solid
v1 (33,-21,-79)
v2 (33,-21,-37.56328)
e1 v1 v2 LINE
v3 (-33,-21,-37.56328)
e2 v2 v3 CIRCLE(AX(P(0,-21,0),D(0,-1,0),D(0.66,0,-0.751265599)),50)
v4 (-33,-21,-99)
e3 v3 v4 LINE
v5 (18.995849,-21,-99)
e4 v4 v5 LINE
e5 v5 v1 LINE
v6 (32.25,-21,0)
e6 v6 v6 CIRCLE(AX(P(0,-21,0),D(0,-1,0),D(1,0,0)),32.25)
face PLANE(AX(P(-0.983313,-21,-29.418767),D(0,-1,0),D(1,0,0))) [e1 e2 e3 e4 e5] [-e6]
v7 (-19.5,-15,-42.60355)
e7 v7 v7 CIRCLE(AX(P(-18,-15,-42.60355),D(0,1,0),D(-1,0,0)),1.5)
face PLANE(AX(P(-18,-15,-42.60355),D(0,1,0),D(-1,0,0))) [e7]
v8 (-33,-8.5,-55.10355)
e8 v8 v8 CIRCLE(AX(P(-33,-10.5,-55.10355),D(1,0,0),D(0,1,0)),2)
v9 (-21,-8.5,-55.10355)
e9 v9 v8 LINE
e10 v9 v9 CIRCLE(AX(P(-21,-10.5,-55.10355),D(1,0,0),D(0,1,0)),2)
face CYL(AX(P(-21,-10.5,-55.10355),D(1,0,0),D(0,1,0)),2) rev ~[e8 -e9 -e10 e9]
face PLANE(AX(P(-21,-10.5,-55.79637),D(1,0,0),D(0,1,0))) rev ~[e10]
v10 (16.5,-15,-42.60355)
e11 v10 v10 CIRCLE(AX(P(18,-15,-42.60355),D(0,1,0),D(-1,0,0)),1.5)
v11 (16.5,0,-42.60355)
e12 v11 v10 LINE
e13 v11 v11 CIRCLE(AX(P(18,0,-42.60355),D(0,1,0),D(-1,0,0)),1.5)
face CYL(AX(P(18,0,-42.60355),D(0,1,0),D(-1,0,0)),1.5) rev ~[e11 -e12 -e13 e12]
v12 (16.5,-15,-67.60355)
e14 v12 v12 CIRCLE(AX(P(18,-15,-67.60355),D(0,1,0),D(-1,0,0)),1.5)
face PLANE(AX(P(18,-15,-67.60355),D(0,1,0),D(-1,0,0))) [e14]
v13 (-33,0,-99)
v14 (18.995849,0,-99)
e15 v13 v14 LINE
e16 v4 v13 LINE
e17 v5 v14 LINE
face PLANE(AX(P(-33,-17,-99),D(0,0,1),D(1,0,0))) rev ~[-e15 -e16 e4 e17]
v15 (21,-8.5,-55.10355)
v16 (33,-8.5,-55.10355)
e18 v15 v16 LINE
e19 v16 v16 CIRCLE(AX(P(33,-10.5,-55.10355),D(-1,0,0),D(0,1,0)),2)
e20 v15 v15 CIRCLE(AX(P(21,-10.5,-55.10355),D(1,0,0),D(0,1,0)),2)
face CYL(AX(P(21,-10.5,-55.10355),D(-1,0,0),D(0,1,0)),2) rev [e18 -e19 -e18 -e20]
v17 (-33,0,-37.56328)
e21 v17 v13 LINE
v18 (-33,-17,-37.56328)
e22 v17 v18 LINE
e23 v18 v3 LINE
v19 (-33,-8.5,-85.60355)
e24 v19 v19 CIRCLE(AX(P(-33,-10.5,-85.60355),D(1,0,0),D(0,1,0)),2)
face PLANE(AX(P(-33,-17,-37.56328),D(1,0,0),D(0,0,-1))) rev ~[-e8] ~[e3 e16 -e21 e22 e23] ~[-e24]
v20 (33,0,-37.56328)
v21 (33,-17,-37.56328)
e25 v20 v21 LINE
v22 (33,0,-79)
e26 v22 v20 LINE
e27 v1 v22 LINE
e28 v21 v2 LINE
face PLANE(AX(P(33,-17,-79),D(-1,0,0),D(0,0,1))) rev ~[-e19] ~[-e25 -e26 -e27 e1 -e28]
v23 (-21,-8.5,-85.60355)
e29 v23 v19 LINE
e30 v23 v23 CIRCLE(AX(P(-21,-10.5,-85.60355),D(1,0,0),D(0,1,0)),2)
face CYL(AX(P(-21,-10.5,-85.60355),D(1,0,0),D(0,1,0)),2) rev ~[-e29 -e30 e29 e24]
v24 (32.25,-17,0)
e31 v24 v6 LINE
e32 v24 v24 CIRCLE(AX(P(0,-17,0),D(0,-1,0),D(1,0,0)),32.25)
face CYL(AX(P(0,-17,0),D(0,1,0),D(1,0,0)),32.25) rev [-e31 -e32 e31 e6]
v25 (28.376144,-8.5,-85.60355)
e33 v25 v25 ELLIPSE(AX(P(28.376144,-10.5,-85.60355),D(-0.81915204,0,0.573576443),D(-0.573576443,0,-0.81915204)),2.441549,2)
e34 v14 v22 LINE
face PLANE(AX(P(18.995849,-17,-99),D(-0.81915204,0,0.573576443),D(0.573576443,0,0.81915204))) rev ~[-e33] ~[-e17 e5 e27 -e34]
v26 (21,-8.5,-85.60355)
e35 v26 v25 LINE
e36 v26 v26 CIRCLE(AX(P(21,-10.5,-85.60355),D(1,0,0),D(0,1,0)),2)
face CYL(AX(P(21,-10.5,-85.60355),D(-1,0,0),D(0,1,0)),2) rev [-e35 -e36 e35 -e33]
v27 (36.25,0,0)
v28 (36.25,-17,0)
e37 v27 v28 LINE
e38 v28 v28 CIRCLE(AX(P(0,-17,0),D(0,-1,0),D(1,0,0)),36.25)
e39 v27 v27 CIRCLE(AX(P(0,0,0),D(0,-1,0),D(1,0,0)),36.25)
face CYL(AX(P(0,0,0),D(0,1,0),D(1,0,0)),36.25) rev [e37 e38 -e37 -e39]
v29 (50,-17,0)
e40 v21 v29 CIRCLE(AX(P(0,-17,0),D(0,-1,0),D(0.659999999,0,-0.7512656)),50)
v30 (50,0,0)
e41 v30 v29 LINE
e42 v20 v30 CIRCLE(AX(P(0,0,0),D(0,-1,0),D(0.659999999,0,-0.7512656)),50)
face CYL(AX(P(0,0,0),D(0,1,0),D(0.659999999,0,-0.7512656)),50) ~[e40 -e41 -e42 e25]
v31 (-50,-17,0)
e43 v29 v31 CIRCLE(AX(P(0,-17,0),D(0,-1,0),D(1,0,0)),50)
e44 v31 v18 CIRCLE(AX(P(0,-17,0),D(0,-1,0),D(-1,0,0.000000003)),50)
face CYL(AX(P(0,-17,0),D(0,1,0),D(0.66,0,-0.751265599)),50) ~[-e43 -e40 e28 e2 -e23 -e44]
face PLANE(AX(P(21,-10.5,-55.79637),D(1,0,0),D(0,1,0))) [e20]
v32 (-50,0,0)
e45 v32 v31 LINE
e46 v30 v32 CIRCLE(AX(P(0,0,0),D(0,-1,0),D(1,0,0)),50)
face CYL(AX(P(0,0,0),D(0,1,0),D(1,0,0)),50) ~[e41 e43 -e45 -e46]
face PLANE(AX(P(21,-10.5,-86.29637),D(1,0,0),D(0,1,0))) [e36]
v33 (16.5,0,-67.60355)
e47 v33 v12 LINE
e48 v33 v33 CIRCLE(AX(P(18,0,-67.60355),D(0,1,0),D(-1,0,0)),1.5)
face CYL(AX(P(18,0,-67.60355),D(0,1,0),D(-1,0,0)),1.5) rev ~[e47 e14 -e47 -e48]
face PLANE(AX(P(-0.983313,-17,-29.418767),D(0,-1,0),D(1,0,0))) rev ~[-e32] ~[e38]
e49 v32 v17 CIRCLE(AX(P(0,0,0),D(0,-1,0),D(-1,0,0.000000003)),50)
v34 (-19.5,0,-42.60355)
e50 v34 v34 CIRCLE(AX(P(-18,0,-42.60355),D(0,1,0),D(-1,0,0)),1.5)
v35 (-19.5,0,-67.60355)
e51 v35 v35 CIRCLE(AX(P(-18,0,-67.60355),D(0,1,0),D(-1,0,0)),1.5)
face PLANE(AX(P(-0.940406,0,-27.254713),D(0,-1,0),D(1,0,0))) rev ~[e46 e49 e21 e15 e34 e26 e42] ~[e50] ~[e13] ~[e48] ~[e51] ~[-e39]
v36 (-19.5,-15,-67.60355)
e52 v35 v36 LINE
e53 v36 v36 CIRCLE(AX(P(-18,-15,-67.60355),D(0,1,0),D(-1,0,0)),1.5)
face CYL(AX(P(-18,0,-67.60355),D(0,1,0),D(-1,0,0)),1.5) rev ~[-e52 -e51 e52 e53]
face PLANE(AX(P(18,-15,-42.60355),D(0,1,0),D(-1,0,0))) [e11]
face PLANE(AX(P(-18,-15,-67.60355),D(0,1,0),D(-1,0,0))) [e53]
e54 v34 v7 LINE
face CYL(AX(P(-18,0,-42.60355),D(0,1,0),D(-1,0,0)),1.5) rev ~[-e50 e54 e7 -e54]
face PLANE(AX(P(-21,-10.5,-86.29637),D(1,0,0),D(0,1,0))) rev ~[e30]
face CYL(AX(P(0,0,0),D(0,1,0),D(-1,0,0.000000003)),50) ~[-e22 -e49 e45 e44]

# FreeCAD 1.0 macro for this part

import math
import FreeCAD as App
import Part
import Sketcher
from FreeCAD import Vector
Q = App.Units.Quantity

doc = App.newDocument("Part")
body = doc.addObject("PartDesign::Body", "Body")

# Sketch on XZ plane
sketch1 = doc.addObject("Sketcher::SketchObject", "Sketch")
body.addObject(sketch1)
sketch1.AttachmentSupport = (doc.XZ_Plane, [""])
sketch1.MapMode = "FlatFace"
sketch1.addGeometry([
    Part.ArcOfCircle(Part.Circle(Vector(0, 0, 0), Vector(0, 0, 1), 50), math.radians(-48.700127), math.radians(0)),  # 0
    Part.ArcOfCircle(Part.Circle(Vector(0, 0, 0), Vector(0, 0, 1), 50), math.radians(0), math.radians(180)),  # 1
    Part.ArcOfCircle(Part.Circle(Vector(0, 0, 0), Vector(0, 0, 1), 50), math.radians(180), math.radians(228.700127)),  # 2
    Part.LineSegment(Vector(-33, -37.56328, 0), Vector(-33, -99, 0)),  # 3
    Part.LineSegment(Vector(-33, -99, 0), Vector(18.995849, -99, 0)),  # 4
    Part.LineSegment(Vector(18.995849, -99, 0), Vector(33, -79, 0)),  # 5
    Part.LineSegment(Vector(33, -79, 0), Vector(33, -37.56328, 0)),  # 6
    Part.Circle(Vector(0, 0, 0), Vector(0, 0, 1), 36.25),  # 7
], False)
sketch1.addConstraint([
    Sketcher.Constraint("Tangent", 0, 2, 1, 1),
    Sketcher.Constraint("Tangent", 1, 2, 2, 1),
    Sketcher.Constraint("Coincident", 2, 2, 3, 1),
    Sketcher.Constraint("Coincident", 3, 2, 4, 1),
    Sketcher.Constraint("Coincident", 4, 2, 5, 1),
    Sketcher.Constraint("Coincident", 5, 2, 6, 1),
    Sketcher.Constraint("Coincident", 6, 2, 0, 1),
    Sketcher.Constraint("Vertical", 3),
    Sketcher.Constraint("Horizontal", 4),
    Sketcher.Constraint("Vertical", 6),
    Sketcher.Constraint("Coincident", 0, 3, -1, 1),
    Sketcher.Constraint("Coincident", 7, 3, -1, 1),
    Sketcher.Constraint("Equal", 0, 1),
    Sketcher.Constraint("Equal", 1, 2),
    Sketcher.Constraint("PointOnObject", 0, 2, -1),
    Sketcher.Constraint("PointOnObject", 1, 2, -1),
    Sketcher.Constraint("Horizontal", 2, 2, 6, 2),
    Sketcher.Constraint("Radius", 0, Q("50 mm")),
    Sketcher.Constraint("Diameter", 7, Q("72.5 mm")),
    Sketcher.Constraint("Angle", 5, Q("55 deg")),
    Sketcher.Constraint("DistanceX", 2, 2, -1, 1, Q("33 mm")),
    Sketcher.Constraint("DistanceY", 3, 2, -1, 1, Q("99 mm")),
    Sketcher.Constraint("DistanceY", 5, 2, -1, 1, Q("79 mm")),
])
pad1 = doc.addObject("PartDesign::Pad", "Pad")
body.addObject(pad1)
pad1.Profile = sketch1
pad1.Length = 17

# Sketch on XZ plane
sketch2 = doc.addObject("Sketcher::SketchObject", "Sketch001")
body.addObject(sketch2)
sketch2.AttachmentSupport = (doc.XZ_Plane, [""])
sketch2.MapMode = "FlatFace"
sketch2.AttachmentOffset = App.Placement(Vector(0, 0, 17), App.Rotation())
sketch2.addGeometry([
    Part.LineSegment(Vector(33, -79, 0), Vector(33, -37.56328, 0)),  # 0
    Part.ArcOfCircle(Part.Circle(Vector(0, 0, 0), Vector(0, 0, 1), 50), math.radians(-48.700127), math.radians(228.700127)),  # 1
    Part.LineSegment(Vector(-33, -37.56328, 0), Vector(-33, -99, 0)),  # 2
    Part.LineSegment(Vector(-33, -99, 0), Vector(18.995849, -99, 0)),  # 3
    Part.LineSegment(Vector(18.995849, -99, 0), Vector(33, -79, 0)),  # 4
    Part.Circle(Vector(0, 0, 0), Vector(0, 0, 1), 32.25),  # 5
], False)
sketch2.addConstraint([
    Sketcher.Constraint("Coincident", 0, 2, 1, 1),
    Sketcher.Constraint("Coincident", 1, 2, 2, 1),
    Sketcher.Constraint("Coincident", 2, 2, 3, 1),
    Sketcher.Constraint("Coincident", 3, 2, 4, 1),
    Sketcher.Constraint("Coincident", 4, 2, 0, 1),
    Sketcher.Constraint("Vertical", 0),
    Sketcher.Constraint("Vertical", 2),
    Sketcher.Constraint("Horizontal", 3),
    Sketcher.Constraint("Coincident", 1, 3, -1, 1),
    Sketcher.Constraint("Coincident", 5, 3, -1, 1),
    Sketcher.Constraint("Horizontal", 0, 2, 1, 2),
    Sketcher.Constraint("Radius", 1, Q("50 mm")),
    Sketcher.Constraint("Diameter", 5, Q("64.5 mm")),
    Sketcher.Constraint("Angle", 4, Q("55 deg")),
    Sketcher.Constraint("DistanceX", -1, 1, 0, 2, Q("33 mm")),
    Sketcher.Constraint("DistanceY", 2, 2, -1, 1, Q("99 mm")),
    Sketcher.Constraint("DistanceY", 4, 2, -1, 1, Q("79 mm")),
])
pad2 = doc.addObject("PartDesign::Pad", "Pad001")
body.addObject(pad2)
pad2.Profile = sketch2
pad2.Length = 4

# Sketch on XZ plane
sketch3 = doc.addObject("Sketcher::SketchObject", "Sketch002")
body.addObject(sketch3)
sketch3.AttachmentSupport = (doc.XZ_Plane, [""])
sketch3.MapMode = "FlatFace"
sketch3.addGeometry([
    Part.Circle(Vector(18, -42.60355, 0), Vector(0, 0, 1), 1.5),
    Part.Circle(Vector(-18, -42.60355, 0), Vector(0, 0, 1), 1.5),
    Part.Circle(Vector(-18, -67.60355, 0), Vector(0, 0, 1), 1.5),
    Part.Circle(Vector(18, -67.60355, 0), Vector(0, 0, 1), 1.5),
], False)
sketch3.addConstraint([
    Sketcher.Constraint("Equal", 0, 1),
    Sketcher.Constraint("Equal", 1, 2),
    Sketcher.Constraint("Equal", 2, 3),
    Sketcher.Constraint("Symmetric", 0, 3, 1, 3, -2),
    Sketcher.Constraint("Symmetric", 2, 3, 3, 3, -2),
    Sketcher.Constraint("Vertical", 1, 3, 2, 3),
    Sketcher.Constraint("Diameter", 0, Q("3 mm")),
    Sketcher.Constraint("DistanceX", -1, 1, 0, 3, Q("18 mm")),
    Sketcher.Constraint("DistanceY", 2, 3, 1, 3, Q("25 mm")),
    Sketcher.Constraint("DistanceY", 0, 3, -1, 1, Q("42.60355 mm")),
])
pocket1 = doc.addObject("PartDesign::Pocket", "Pocket")
body.addObject(pocket1)
pocket1.Profile = sketch3
pocket1.Length = 15
pocket1.Reversed = True

# Sketch on YZ plane
sketch4 = doc.addObject("Sketcher::SketchObject", "Sketch003")
body.addObject(sketch4)
sketch4.AttachmentSupport = (doc.YZ_Plane, [""])
sketch4.MapMode = "FlatFace"
sketch4.AttachmentOffset = App.Placement(Vector(0, 0, 21), App.Rotation())
sketch4.addGeometry([
    Part.Circle(Vector(-10.5, -85.60355, 0), Vector(0, 0, 1), 2),
    Part.Circle(Vector(-10.5, -55.10355, 0), Vector(0, 0, 1), 2),
], False)
sketch4.addConstraint([
    Sketcher.Constraint("Equal", 0, 1),
    Sketcher.Constraint("Vertical", 0, 3, 1, 3),
    Sketcher.Constraint("Diameter", 0, Q("4 mm")),
    Sketcher.Constraint("DistanceX", 0, 3, -1, 1, Q("10.5 mm")),
    Sketcher.Constraint("DistanceY", 0, 3, 1, 3, Q("30.5 mm")),
    Sketcher.Constraint("DistanceY", 0, 3, -1, 1, Q("85.60355 mm")),
])
pocket2 = doc.addObject("PartDesign::Pocket", "Pocket001")
body.addObject(pocket2)
pocket2.Profile = sketch4
pocket2.Length = 25
pocket2.Reversed = True

# Sketch on YZ plane
sketch5 = doc.addObject("Sketcher::SketchObject", "Sketch004")
body.addObject(sketch5)
sketch5.AttachmentSupport = (doc.YZ_Plane, [""])
sketch5.MapMode = "FlatFace"
sketch5.AttachmentOffset = App.Placement(Vector(0, 0, -21), App.Rotation())
sketch5.addGeometry([
    Part.Circle(Vector(-10.5, -85.60355, 0), Vector(0, 0, 1), 2),
    Part.Circle(Vector(-10.5, -55.10355, 0), Vector(0, 0, 1), 2),
], False)
sketch5.addConstraint([
    Sketcher.Constraint("Equal", 0, 1),
    Sketcher.Constraint("Vertical", 0, 3, 1, 3),
    Sketcher.Constraint("Diameter", 0, Q("4 mm")),
    Sketcher.Constraint("DistanceX", 0, 3, -1, 1, Q("10.5 mm")),
    Sketcher.Constraint("DistanceY", 0, 3, 1, 3, Q("30.5 mm")),
    Sketcher.Constraint("DistanceY", 0, 3, -1, 1, Q("85.60355 mm")),
])
pocket3 = doc.addObject("PartDesign::Pocket", "Pocket002")
body.addObject(pocket3)
pocket3.Profile = sketch5
pocket3.Length = 25

doc.recompute()
